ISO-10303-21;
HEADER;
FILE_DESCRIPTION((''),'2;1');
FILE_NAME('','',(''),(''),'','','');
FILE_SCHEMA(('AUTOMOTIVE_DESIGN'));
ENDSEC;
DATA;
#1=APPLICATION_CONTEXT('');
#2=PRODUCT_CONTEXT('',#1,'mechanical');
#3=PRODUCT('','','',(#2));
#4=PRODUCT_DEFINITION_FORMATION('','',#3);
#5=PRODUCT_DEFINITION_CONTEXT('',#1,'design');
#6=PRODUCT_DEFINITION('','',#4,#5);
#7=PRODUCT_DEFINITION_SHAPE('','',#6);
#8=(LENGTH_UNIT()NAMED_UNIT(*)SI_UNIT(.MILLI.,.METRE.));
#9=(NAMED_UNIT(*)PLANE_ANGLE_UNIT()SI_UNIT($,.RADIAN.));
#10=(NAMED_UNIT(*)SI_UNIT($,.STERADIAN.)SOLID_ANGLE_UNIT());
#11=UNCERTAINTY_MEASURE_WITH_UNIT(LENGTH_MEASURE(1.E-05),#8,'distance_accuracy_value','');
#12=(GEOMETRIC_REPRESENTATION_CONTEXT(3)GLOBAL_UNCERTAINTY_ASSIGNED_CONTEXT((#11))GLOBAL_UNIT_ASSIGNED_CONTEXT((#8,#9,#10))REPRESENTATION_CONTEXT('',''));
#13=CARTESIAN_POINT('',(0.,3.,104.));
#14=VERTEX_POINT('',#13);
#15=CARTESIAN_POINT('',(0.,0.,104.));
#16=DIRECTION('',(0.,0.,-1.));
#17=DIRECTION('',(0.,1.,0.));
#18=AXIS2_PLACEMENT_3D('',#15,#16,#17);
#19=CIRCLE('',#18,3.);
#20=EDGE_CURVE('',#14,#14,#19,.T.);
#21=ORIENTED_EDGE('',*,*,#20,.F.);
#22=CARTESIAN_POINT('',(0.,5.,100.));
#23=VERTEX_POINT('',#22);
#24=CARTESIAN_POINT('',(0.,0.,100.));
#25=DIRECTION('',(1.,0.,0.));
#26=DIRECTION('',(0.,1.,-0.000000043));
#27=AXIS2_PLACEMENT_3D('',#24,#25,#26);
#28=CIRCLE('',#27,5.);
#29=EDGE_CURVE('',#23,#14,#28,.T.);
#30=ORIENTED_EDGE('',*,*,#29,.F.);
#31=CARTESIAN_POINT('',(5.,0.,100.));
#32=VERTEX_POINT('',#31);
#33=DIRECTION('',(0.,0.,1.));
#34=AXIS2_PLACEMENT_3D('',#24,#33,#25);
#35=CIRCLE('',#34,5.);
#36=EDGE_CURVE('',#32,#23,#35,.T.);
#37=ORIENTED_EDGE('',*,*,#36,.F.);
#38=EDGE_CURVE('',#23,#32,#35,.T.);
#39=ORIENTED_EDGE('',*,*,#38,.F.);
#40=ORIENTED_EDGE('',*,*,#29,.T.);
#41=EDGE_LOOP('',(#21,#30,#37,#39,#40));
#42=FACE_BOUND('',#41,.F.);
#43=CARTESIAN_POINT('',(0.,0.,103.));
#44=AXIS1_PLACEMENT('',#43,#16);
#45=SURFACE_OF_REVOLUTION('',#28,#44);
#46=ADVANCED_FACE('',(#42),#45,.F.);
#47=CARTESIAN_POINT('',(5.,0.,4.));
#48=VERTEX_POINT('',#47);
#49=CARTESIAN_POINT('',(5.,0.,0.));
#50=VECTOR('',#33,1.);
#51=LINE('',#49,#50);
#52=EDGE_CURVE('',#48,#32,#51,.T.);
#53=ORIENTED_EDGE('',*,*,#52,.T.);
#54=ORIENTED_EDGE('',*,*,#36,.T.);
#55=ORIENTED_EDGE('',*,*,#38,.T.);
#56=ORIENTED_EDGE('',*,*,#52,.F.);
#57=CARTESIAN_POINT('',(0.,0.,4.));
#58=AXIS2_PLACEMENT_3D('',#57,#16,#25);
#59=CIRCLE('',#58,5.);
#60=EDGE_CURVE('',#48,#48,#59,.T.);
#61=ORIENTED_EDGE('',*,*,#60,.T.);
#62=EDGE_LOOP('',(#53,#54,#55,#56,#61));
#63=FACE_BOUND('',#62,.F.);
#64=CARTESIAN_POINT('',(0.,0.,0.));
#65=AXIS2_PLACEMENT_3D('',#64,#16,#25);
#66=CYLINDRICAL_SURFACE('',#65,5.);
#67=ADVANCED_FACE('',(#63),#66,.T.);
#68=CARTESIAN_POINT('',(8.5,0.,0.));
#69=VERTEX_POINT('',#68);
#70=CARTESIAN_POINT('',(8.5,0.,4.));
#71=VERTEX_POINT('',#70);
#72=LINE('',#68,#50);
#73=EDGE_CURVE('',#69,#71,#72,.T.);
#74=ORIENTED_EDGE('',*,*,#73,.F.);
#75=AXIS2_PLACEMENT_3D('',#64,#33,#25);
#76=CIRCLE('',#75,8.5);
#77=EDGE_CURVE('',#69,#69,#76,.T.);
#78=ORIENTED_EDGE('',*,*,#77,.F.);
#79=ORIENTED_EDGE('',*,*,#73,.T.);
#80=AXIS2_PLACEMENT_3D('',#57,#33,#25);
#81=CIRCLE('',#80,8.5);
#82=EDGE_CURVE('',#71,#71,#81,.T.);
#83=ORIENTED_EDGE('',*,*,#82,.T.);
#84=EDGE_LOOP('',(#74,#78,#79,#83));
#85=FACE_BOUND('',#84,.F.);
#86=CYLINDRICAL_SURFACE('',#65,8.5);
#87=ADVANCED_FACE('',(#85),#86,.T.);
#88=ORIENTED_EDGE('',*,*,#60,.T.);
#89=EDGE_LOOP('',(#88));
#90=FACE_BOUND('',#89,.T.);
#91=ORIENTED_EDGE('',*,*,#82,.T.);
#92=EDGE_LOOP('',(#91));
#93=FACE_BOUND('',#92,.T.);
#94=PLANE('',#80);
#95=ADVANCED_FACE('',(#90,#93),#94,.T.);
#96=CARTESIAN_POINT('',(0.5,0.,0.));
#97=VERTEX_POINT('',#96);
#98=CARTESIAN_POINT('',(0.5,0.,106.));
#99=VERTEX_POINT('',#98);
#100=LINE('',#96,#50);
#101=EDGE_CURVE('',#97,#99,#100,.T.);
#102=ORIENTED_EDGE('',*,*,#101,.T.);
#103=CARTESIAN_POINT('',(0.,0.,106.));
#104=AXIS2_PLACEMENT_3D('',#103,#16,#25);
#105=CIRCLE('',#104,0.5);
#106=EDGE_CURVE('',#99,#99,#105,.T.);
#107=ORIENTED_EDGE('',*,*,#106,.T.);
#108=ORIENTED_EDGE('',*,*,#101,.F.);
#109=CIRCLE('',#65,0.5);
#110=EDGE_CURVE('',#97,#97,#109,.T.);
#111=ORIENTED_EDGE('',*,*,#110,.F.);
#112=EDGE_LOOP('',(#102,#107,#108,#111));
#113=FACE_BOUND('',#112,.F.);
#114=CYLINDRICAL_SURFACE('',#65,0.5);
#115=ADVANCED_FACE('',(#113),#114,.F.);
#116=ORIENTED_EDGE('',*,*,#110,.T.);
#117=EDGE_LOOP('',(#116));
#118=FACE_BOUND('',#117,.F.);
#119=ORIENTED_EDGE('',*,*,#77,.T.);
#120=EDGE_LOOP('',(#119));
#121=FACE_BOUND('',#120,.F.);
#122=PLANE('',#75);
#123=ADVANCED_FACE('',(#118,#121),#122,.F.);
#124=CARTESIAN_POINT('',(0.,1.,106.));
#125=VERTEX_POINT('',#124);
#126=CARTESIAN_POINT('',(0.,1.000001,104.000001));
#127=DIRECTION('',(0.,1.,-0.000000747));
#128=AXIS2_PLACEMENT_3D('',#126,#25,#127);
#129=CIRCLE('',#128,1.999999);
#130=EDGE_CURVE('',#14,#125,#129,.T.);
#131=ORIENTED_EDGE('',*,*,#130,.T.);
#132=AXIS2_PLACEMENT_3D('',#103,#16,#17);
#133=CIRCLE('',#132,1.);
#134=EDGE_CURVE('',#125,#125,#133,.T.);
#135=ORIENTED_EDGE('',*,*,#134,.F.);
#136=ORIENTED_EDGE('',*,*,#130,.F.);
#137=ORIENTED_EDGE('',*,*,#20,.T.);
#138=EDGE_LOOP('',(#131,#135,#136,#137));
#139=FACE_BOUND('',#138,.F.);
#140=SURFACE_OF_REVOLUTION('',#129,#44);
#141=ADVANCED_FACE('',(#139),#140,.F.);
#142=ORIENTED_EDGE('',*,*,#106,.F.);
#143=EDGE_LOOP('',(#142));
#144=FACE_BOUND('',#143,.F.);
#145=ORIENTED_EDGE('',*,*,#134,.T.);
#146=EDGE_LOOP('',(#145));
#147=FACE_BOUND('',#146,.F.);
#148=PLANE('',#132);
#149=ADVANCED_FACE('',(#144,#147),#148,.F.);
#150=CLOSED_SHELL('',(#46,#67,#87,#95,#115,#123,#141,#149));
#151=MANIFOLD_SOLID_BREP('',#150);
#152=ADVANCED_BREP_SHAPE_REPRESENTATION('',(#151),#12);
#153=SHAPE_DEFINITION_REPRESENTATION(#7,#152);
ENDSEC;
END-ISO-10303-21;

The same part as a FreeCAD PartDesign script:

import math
import FreeCAD as App
import Part
import Sketcher
Q = App.Units.Quantity

doc = App.newDocument("Part")
body = doc.addObject("PartDesign::Body", "Body")

# Sketch on XY plane
sketch1 = body.newObject("Sketcher::SketchObject", "Sketch")
sketch1.AttachmentSupport = (doc.getObject("XY_Plane"), [""])
sketch1.MapMode = "FlatFace"
sketch1.addGeometry(Part.Circle(App.Vector(0, 0, 0), App.Vector(0, 0, 1), 8), False)
sketch1.addConstraint([
    Sketcher.Constraint("Coincident", 0, 3, -1, 1),
    Sketcher.Constraint("Diameter", 0, Q("17 mm")),
])
pad1 = body.newObject("PartDesign::Pad", "Pad")
pad1.Profile = sketch1
pad1.Length = 4

# Sketch on XY plane
sketch2 = body.newObject("Sketcher::SketchObject", "Sketch001")
sketch2.AttachmentSupport = (doc.getObject("XY_Plane"), [""])
sketch2.MapMode = "FlatFace"
sketch2.addGeometry(Part.Circle(App.Vector(0, 0, 0), App.Vector(0, 0, 1), 5), False)
sketch2.addConstraint([
    Sketcher.Constraint("Coincident", 0, 3, -1, 1),
    Sketcher.Constraint("Diameter", 0, Q("10 mm")),
])
pad2 = body.newObject("PartDesign::Pad", "Pad001")
pad2.Profile = sketch2
pad2.Length = 100

# Sketch on YZ plane
sketch3 = body.newObject("Sketcher::SketchObject", "Sketch002")
sketch3.AttachmentSupport = (doc.getObject("YZ_Plane"), [""])
sketch3.MapMode = "FlatFace"
sketch3.addGeometry([
    Part.LineSegment(App.Vector(0, 100, 0), App.Vector(5, 100, 0)),  # 0
    Part.ArcOfCircle(Part.Circle(App.Vector(0, 100, 0), App.Vector(0, 0, 1), 5), math.radians(0), math.radians(53)),  # 1
    Part.ArcOfCircle(Part.Circle(App.Vector(1, 104, 0), App.Vector(0, 0, 1), 2), math.radians(0), math.radians(90)),  # 2
    Part.LineSegment(App.Vector(1, 106, 0), App.Vector(0, 106, 0)),  # 3
    Part.LineSegment(App.Vector(0, 106, 0), App.Vector(0, 100, 0)),  # 4
], False)
sketch3.addConstraint([
    Sketcher.Constraint("Coincident", 0, 2, 1, 1),
    Sketcher.Constraint("Coincident", 1, 2, 2, 1),
    Sketcher.Constraint("Tangent", 2, 2, 3, 1),
    Sketcher.Constraint("Coincident", 3, 2, 4, 1),
    Sketcher.Constraint("Coincident", 4, 2, 0, 1),
    Sketcher.Constraint("Horizontal", 0),
    Sketcher.Constraint("Horizontal", 3),
    Sketcher.Constraint("Vertical", 4),
    Sketcher.Constraint("Coincident", 4, 2, 1, 3),
    Sketcher.Constraint("PointOnObject", 1, 3, -2),
    Sketcher.Constraint("Horizontal", 2, 3, 1, 2),
    Sketcher.Constraint("Radius", 1, Q("5 mm")),
    Sketcher.Constraint("Radius", 2, Q("1.999999 mm")),
    Sketcher.Constraint("DistanceX", 3, 2, 3, 1, Q("1 mm")),
    Sketcher.Constraint("DistanceY", -1, 1, 1, 3, Q("100 mm")),
])
revolution = body.newObject("PartDesign::Revolution", "Revolution")
revolution.Profile = sketch3
revolution.ReferenceAxis = (sketch3, ["V_Axis"])
revolution.Angle = 360

# Sketch on XY plane
sketch4 = body.newObject("Sketcher::SketchObject", "Sketch003")
sketch4.AttachmentSupport = (doc.getObject("XY_Plane"), [""])
sketch4.MapMode = "FlatFace"
sketch4.addGeometry(Part.Circle(App.Vector(0, 0, 0), App.Vector(0, 0, 1), 0.5), False)
sketch4.addConstraint([
    Sketcher.Constraint("Coincident", 0, 3, -1, 1),
    Sketcher.Constraint("Diameter", 0, Q("1 mm")),
])
pocket1 = body.newObject("PartDesign::Pocket", "Pocket")
pocket1.Profile = sketch4
pocket1.Length = 169.1
pocket1.Reversed = True

doc.recompute()
